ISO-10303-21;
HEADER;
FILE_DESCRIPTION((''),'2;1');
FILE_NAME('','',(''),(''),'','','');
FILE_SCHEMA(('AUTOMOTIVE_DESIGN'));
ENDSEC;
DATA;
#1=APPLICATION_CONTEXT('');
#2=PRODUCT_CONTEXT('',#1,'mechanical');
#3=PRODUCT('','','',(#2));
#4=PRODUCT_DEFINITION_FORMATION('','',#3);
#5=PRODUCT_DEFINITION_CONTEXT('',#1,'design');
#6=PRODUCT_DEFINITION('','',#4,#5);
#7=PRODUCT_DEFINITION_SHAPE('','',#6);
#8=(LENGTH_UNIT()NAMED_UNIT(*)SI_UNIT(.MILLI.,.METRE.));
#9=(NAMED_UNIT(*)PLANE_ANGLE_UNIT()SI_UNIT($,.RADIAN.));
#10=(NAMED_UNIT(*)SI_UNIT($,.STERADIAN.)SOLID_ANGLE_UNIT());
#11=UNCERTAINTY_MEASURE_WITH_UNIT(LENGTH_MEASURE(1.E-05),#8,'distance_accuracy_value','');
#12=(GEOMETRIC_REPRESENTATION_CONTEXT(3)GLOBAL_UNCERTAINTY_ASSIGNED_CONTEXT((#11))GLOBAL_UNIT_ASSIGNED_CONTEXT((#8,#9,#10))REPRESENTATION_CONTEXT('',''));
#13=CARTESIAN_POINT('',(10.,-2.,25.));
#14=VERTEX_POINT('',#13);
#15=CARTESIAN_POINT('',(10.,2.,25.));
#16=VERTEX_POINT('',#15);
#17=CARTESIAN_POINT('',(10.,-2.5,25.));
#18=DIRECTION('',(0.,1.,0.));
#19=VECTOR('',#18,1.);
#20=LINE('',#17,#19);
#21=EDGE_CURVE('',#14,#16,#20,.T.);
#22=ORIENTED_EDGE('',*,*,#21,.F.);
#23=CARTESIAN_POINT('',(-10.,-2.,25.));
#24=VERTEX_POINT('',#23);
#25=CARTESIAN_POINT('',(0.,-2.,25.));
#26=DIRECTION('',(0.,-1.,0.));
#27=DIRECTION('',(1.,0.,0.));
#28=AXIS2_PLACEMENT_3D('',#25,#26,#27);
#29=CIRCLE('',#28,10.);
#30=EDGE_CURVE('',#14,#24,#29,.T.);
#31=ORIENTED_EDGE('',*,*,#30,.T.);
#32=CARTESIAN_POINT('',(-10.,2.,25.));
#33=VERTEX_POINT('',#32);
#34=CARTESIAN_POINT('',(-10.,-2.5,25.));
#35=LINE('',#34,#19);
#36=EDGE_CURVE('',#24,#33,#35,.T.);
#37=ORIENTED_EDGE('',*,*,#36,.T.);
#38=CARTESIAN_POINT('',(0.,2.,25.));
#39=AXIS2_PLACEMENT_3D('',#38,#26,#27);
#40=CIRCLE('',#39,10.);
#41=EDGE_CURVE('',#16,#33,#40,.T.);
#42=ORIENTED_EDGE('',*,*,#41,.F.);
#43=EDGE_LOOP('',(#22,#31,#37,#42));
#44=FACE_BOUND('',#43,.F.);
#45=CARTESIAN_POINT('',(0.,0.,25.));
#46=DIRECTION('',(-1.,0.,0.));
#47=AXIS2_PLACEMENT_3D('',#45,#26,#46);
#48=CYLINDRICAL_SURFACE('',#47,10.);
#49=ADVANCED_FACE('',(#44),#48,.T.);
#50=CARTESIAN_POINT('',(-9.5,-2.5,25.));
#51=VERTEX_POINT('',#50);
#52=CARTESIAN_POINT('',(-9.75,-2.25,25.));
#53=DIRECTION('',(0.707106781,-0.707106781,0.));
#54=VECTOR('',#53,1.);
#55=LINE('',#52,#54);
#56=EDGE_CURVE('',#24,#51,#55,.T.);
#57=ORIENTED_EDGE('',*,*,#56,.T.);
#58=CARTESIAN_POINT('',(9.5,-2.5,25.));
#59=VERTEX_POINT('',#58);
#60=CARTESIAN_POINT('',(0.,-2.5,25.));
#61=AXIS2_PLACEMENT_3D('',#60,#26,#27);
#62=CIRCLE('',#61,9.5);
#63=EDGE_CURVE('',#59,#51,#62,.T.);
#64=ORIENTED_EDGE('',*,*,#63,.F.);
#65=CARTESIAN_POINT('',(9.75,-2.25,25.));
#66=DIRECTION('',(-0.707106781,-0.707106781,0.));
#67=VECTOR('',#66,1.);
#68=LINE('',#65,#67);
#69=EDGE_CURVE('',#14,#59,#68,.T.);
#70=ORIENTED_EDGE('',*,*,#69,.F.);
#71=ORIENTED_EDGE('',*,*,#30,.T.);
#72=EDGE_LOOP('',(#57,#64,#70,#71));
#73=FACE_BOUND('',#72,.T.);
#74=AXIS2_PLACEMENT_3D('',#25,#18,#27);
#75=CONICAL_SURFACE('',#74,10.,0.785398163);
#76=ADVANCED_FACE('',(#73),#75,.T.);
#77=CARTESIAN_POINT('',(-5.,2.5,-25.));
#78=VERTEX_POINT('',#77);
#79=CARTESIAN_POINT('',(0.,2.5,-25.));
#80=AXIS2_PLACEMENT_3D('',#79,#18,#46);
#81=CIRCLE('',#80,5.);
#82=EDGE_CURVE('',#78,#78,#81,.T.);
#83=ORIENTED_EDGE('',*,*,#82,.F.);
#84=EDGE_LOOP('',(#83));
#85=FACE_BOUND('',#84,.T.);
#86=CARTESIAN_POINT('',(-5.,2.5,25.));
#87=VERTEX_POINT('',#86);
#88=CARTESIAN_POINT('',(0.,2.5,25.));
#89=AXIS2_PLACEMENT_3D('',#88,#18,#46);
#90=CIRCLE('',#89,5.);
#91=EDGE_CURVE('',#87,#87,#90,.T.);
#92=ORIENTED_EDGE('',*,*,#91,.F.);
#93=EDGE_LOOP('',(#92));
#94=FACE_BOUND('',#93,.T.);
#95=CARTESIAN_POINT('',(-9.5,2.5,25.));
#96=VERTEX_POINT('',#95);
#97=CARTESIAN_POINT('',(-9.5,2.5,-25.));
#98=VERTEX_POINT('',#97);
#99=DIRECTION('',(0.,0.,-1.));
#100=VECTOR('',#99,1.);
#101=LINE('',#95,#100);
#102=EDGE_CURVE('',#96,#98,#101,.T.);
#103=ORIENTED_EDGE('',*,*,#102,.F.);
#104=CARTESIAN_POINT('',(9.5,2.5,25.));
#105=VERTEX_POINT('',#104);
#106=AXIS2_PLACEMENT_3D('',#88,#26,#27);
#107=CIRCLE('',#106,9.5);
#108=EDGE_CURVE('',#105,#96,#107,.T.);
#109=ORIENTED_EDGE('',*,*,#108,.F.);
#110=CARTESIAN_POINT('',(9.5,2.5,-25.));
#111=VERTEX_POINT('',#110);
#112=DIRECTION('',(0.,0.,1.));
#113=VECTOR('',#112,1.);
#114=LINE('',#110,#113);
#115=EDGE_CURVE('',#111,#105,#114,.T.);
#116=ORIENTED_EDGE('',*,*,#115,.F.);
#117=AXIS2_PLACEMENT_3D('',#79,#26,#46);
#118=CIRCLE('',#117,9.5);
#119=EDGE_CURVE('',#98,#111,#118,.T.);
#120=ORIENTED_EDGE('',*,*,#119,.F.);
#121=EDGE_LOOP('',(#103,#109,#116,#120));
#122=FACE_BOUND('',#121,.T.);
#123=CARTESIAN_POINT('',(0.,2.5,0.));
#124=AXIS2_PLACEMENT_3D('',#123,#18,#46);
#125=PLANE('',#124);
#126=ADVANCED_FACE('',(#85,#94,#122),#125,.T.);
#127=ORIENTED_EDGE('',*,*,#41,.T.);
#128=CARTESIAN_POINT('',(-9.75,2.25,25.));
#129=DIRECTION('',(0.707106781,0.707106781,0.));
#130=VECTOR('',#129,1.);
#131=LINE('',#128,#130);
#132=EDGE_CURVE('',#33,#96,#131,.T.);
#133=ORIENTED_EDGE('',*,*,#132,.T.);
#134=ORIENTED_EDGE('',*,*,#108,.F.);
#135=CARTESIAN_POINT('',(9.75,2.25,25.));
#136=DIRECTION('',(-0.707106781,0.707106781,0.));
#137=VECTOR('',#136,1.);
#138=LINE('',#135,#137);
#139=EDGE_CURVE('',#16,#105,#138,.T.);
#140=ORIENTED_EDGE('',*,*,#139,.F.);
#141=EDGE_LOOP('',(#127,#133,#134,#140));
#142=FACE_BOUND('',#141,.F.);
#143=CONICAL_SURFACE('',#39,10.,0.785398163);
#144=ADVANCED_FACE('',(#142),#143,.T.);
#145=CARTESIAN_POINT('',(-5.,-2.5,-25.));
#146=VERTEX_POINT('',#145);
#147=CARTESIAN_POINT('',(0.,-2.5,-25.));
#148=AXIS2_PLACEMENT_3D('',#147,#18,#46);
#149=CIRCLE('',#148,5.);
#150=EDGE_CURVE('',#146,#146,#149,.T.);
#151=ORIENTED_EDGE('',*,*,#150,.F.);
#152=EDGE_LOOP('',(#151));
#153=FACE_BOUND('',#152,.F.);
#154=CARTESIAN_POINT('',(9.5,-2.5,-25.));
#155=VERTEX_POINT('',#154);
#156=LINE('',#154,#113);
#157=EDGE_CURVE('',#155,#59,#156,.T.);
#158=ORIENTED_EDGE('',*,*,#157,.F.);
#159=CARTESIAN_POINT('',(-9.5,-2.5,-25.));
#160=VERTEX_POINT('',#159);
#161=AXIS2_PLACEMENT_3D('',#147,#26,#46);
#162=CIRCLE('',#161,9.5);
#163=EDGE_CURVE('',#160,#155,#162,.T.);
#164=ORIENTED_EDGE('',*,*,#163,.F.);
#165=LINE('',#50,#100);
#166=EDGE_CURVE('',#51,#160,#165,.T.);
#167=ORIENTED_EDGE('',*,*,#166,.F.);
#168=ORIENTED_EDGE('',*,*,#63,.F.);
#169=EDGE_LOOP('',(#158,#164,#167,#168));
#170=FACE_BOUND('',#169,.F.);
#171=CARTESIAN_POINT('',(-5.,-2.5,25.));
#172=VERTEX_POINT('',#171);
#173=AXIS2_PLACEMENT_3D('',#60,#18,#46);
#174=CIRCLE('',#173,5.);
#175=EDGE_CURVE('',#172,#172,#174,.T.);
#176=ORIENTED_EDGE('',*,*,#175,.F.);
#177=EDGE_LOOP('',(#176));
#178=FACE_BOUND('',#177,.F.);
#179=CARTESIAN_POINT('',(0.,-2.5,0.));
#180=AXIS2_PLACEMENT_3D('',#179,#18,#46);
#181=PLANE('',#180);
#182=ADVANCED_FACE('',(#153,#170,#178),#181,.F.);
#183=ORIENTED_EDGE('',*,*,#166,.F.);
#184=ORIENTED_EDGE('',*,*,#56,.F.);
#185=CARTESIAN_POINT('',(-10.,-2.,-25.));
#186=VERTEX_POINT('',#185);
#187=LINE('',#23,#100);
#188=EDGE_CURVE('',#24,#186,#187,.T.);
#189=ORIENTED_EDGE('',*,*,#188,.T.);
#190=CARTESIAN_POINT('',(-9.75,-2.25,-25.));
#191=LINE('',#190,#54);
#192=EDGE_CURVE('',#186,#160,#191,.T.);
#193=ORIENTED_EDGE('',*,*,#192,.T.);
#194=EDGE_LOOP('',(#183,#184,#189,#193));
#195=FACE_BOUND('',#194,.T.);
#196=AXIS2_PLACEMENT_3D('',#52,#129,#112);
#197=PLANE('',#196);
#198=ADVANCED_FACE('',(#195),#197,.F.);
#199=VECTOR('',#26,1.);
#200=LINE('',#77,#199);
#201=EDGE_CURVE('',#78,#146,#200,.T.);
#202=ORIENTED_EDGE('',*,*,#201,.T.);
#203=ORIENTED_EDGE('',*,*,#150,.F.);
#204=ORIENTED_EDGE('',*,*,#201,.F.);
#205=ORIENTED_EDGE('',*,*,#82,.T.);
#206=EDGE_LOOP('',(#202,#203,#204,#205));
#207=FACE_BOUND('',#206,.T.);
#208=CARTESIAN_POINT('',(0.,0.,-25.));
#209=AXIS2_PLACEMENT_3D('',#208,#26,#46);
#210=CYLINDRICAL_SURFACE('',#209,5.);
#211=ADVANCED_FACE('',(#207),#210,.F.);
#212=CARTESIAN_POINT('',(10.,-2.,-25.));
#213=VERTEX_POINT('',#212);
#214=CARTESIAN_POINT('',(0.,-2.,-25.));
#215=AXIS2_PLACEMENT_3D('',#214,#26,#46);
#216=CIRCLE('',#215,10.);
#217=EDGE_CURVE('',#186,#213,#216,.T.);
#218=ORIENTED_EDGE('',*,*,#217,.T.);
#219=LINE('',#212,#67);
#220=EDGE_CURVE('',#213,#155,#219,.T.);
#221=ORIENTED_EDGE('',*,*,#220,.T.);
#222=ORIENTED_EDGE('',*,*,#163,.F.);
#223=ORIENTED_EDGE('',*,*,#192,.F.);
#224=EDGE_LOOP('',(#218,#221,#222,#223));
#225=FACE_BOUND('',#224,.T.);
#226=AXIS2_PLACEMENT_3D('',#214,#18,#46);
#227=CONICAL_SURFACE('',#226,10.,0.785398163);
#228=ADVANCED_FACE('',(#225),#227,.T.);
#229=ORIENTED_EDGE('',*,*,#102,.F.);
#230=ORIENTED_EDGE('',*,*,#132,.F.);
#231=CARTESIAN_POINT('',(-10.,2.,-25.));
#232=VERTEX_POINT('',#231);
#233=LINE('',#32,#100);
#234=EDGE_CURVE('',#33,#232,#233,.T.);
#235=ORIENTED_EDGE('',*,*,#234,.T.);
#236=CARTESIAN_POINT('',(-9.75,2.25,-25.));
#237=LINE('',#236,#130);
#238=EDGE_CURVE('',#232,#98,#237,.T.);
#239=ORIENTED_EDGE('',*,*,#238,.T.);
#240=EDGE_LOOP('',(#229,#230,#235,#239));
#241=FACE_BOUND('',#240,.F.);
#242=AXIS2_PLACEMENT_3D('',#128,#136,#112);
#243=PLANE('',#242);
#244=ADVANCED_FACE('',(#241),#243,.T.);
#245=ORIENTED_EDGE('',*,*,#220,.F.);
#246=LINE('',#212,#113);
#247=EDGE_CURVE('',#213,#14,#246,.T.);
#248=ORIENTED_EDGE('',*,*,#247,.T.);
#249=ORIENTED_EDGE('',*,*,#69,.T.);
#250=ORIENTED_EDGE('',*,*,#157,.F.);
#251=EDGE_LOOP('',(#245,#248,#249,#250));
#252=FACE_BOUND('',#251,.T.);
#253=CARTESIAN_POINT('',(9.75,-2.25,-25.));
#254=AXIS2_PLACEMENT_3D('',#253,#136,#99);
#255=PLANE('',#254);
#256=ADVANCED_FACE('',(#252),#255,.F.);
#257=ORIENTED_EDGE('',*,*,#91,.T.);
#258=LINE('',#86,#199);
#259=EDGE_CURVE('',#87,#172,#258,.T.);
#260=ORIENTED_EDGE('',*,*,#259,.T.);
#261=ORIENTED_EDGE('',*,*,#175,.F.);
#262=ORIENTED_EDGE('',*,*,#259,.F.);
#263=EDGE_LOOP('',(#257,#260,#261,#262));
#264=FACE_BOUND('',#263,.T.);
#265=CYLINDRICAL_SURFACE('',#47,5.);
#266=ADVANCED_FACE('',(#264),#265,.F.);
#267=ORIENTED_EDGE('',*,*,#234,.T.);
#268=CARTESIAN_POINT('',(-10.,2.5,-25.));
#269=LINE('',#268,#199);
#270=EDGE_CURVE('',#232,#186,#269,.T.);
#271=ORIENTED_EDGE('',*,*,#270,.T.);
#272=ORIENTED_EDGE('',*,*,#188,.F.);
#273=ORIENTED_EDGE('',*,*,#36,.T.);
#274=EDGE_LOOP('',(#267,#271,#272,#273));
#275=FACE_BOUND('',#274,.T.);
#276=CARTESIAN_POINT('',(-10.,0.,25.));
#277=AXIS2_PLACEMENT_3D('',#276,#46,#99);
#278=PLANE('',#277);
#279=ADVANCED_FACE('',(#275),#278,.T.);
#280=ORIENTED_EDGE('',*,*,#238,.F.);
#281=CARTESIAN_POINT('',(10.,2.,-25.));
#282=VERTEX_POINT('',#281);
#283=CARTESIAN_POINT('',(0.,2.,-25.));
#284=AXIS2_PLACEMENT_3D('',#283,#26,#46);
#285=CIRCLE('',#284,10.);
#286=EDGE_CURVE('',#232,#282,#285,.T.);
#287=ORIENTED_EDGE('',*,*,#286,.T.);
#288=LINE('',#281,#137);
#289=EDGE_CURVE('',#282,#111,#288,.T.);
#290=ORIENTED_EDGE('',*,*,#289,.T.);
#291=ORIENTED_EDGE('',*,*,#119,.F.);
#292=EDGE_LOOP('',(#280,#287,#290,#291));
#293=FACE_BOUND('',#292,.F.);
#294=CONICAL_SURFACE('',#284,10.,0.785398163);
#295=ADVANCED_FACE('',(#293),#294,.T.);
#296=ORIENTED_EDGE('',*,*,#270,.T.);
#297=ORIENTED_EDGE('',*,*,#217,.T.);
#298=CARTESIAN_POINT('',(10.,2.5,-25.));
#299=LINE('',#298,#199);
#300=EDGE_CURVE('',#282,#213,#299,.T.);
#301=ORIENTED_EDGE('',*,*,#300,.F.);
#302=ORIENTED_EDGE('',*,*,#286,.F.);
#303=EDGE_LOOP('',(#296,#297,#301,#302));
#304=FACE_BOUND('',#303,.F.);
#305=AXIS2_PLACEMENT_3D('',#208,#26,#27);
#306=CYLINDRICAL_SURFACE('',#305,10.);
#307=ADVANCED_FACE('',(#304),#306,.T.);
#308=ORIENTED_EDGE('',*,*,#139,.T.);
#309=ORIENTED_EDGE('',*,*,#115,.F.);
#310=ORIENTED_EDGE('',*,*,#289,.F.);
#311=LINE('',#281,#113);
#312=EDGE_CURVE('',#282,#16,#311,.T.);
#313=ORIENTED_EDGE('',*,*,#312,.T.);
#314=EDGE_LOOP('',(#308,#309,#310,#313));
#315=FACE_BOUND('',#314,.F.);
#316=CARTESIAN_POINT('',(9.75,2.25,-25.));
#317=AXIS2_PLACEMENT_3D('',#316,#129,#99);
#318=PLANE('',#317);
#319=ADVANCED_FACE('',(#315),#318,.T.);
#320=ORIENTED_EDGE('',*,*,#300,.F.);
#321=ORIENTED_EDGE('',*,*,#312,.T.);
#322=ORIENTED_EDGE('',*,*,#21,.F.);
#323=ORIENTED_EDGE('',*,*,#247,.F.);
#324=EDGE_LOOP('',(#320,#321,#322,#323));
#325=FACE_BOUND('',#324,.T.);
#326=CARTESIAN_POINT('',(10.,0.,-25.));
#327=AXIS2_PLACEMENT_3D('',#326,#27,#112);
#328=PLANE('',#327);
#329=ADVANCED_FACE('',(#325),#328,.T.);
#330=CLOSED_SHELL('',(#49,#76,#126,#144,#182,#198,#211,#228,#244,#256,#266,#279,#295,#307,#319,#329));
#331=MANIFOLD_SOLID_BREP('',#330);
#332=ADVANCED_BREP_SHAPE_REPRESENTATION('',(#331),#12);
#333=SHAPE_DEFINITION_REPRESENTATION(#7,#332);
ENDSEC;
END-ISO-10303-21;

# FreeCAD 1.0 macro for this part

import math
import FreeCAD as App
import Part
import Sketcher
Q = App.Units.Quantity


def edges_at(feature, points):
    """Names of the edges that pass closest to the given points."""
    edges = feature.Shape.Edges
    near = lambda p: min(range(len(edges)), key=lambda i: edges[i].distToShape(Part.Vertex(*p))[0])
    return sorted({f"Edge{near(p) + 1}" for p in points})

doc = App.newDocument("Part")
body = doc.addObject("PartDesign::Body", "Body")

sketch1 = body.newObject("Sketcher::SketchObject", "Sketch")
sketch1.AttachmentSupport = (doc.getObject("XZ_Plane"), [""])
sketch1.MapMode = "FlatFace"
sketch1.addGeometry(Part.LineSegment(App.Vector(-10, -25, 0), App.Vector(-10, 25, 0)), False)
sketch1.addGeometry(Part.ArcOfCircle(Part.Circle(App.Vector(0, 25, 0), App.Vector(0, 0, 1), 10), math.radians(0), math.radians(180)), False)
sketch1.addGeometry(Part.LineSegment(App.Vector(10, 25, 0), App.Vector(10, -25, 0)), False)
sketch1.addGeometry(Part.ArcOfCircle(Part.Circle(App.Vector(0, -25, 0), App.Vector(0, 0, 1), 10), math.radians(180), math.radians(360)), False)
sketch1.addGeometry(Part.Circle(App.Vector(0, -25, 0), App.Vector(0, 0, 1), 5), False)
sketch1.addGeometry(Part.Circle(App.Vector(0, 25, 0), App.Vector(0, 0, 1), 5), False)
sketch1.addConstraint(Sketcher.Constraint("Tangent", 0, 2, 1, 2))
sketch1.addConstraint(Sketcher.Constraint("Tangent", 1, 1, 2, 1))
sketch1.addConstraint(Sketcher.Constraint("Tangent", 2, 2, 3, 2))
sketch1.addConstraint(Sketcher.Constraint("Tangent", 3, 1, 0, 1))
sketch1.addConstraint(Sketcher.Constraint("Vertical", 0))
sketch1.addConstraint(Sketcher.Constraint("Vertical", 2))
sketch1.addConstraint(Sketcher.Constraint("Coincident", 4, 3, 3, 3))
sketch1.addConstraint(Sketcher.Constraint("Coincident", 5, 3, 1, 3))
sketch1.addConstraint(Sketcher.Constraint("Equal", 4, 5))
sketch1.addConstraint(Sketcher.Constraint("Symmetric", 1, 3, 3, 3, -1, 1))
sketch1.addConstraint(Sketcher.Constraint("Diameter", 4, Q("10 mm")))
sketch1.addConstraint(Sketcher.Constraint("Radius", 1, Q("10 mm")))
sketch1.addConstraint(Sketcher.Constraint("DistanceY", 0, 1, 0, 2, Q("50 mm")))
pad1 = body.newObject("PartDesign::Pad", "Pad")
pad1.Profile = sketch1
pad1.Length = 5
pad1.Midplane = True
doc.recompute()

chamfer = body.newObject("PartDesign::Chamfer", "Chamfer")
chamfer.Base = (pad1, edges_at(pad1, [
    (-10, -2.5, 0),
    (0, -2.5, -35),
    (0, -2.5, 35),
    (10, -2.5, 0),
    (-10, 2.5, 0),
    (0, 2.5, 35),
    (10, 2.5, 0),
    (0, 2.5, -35),
]))
chamfer.Size = 0.5

doc.recompute()
